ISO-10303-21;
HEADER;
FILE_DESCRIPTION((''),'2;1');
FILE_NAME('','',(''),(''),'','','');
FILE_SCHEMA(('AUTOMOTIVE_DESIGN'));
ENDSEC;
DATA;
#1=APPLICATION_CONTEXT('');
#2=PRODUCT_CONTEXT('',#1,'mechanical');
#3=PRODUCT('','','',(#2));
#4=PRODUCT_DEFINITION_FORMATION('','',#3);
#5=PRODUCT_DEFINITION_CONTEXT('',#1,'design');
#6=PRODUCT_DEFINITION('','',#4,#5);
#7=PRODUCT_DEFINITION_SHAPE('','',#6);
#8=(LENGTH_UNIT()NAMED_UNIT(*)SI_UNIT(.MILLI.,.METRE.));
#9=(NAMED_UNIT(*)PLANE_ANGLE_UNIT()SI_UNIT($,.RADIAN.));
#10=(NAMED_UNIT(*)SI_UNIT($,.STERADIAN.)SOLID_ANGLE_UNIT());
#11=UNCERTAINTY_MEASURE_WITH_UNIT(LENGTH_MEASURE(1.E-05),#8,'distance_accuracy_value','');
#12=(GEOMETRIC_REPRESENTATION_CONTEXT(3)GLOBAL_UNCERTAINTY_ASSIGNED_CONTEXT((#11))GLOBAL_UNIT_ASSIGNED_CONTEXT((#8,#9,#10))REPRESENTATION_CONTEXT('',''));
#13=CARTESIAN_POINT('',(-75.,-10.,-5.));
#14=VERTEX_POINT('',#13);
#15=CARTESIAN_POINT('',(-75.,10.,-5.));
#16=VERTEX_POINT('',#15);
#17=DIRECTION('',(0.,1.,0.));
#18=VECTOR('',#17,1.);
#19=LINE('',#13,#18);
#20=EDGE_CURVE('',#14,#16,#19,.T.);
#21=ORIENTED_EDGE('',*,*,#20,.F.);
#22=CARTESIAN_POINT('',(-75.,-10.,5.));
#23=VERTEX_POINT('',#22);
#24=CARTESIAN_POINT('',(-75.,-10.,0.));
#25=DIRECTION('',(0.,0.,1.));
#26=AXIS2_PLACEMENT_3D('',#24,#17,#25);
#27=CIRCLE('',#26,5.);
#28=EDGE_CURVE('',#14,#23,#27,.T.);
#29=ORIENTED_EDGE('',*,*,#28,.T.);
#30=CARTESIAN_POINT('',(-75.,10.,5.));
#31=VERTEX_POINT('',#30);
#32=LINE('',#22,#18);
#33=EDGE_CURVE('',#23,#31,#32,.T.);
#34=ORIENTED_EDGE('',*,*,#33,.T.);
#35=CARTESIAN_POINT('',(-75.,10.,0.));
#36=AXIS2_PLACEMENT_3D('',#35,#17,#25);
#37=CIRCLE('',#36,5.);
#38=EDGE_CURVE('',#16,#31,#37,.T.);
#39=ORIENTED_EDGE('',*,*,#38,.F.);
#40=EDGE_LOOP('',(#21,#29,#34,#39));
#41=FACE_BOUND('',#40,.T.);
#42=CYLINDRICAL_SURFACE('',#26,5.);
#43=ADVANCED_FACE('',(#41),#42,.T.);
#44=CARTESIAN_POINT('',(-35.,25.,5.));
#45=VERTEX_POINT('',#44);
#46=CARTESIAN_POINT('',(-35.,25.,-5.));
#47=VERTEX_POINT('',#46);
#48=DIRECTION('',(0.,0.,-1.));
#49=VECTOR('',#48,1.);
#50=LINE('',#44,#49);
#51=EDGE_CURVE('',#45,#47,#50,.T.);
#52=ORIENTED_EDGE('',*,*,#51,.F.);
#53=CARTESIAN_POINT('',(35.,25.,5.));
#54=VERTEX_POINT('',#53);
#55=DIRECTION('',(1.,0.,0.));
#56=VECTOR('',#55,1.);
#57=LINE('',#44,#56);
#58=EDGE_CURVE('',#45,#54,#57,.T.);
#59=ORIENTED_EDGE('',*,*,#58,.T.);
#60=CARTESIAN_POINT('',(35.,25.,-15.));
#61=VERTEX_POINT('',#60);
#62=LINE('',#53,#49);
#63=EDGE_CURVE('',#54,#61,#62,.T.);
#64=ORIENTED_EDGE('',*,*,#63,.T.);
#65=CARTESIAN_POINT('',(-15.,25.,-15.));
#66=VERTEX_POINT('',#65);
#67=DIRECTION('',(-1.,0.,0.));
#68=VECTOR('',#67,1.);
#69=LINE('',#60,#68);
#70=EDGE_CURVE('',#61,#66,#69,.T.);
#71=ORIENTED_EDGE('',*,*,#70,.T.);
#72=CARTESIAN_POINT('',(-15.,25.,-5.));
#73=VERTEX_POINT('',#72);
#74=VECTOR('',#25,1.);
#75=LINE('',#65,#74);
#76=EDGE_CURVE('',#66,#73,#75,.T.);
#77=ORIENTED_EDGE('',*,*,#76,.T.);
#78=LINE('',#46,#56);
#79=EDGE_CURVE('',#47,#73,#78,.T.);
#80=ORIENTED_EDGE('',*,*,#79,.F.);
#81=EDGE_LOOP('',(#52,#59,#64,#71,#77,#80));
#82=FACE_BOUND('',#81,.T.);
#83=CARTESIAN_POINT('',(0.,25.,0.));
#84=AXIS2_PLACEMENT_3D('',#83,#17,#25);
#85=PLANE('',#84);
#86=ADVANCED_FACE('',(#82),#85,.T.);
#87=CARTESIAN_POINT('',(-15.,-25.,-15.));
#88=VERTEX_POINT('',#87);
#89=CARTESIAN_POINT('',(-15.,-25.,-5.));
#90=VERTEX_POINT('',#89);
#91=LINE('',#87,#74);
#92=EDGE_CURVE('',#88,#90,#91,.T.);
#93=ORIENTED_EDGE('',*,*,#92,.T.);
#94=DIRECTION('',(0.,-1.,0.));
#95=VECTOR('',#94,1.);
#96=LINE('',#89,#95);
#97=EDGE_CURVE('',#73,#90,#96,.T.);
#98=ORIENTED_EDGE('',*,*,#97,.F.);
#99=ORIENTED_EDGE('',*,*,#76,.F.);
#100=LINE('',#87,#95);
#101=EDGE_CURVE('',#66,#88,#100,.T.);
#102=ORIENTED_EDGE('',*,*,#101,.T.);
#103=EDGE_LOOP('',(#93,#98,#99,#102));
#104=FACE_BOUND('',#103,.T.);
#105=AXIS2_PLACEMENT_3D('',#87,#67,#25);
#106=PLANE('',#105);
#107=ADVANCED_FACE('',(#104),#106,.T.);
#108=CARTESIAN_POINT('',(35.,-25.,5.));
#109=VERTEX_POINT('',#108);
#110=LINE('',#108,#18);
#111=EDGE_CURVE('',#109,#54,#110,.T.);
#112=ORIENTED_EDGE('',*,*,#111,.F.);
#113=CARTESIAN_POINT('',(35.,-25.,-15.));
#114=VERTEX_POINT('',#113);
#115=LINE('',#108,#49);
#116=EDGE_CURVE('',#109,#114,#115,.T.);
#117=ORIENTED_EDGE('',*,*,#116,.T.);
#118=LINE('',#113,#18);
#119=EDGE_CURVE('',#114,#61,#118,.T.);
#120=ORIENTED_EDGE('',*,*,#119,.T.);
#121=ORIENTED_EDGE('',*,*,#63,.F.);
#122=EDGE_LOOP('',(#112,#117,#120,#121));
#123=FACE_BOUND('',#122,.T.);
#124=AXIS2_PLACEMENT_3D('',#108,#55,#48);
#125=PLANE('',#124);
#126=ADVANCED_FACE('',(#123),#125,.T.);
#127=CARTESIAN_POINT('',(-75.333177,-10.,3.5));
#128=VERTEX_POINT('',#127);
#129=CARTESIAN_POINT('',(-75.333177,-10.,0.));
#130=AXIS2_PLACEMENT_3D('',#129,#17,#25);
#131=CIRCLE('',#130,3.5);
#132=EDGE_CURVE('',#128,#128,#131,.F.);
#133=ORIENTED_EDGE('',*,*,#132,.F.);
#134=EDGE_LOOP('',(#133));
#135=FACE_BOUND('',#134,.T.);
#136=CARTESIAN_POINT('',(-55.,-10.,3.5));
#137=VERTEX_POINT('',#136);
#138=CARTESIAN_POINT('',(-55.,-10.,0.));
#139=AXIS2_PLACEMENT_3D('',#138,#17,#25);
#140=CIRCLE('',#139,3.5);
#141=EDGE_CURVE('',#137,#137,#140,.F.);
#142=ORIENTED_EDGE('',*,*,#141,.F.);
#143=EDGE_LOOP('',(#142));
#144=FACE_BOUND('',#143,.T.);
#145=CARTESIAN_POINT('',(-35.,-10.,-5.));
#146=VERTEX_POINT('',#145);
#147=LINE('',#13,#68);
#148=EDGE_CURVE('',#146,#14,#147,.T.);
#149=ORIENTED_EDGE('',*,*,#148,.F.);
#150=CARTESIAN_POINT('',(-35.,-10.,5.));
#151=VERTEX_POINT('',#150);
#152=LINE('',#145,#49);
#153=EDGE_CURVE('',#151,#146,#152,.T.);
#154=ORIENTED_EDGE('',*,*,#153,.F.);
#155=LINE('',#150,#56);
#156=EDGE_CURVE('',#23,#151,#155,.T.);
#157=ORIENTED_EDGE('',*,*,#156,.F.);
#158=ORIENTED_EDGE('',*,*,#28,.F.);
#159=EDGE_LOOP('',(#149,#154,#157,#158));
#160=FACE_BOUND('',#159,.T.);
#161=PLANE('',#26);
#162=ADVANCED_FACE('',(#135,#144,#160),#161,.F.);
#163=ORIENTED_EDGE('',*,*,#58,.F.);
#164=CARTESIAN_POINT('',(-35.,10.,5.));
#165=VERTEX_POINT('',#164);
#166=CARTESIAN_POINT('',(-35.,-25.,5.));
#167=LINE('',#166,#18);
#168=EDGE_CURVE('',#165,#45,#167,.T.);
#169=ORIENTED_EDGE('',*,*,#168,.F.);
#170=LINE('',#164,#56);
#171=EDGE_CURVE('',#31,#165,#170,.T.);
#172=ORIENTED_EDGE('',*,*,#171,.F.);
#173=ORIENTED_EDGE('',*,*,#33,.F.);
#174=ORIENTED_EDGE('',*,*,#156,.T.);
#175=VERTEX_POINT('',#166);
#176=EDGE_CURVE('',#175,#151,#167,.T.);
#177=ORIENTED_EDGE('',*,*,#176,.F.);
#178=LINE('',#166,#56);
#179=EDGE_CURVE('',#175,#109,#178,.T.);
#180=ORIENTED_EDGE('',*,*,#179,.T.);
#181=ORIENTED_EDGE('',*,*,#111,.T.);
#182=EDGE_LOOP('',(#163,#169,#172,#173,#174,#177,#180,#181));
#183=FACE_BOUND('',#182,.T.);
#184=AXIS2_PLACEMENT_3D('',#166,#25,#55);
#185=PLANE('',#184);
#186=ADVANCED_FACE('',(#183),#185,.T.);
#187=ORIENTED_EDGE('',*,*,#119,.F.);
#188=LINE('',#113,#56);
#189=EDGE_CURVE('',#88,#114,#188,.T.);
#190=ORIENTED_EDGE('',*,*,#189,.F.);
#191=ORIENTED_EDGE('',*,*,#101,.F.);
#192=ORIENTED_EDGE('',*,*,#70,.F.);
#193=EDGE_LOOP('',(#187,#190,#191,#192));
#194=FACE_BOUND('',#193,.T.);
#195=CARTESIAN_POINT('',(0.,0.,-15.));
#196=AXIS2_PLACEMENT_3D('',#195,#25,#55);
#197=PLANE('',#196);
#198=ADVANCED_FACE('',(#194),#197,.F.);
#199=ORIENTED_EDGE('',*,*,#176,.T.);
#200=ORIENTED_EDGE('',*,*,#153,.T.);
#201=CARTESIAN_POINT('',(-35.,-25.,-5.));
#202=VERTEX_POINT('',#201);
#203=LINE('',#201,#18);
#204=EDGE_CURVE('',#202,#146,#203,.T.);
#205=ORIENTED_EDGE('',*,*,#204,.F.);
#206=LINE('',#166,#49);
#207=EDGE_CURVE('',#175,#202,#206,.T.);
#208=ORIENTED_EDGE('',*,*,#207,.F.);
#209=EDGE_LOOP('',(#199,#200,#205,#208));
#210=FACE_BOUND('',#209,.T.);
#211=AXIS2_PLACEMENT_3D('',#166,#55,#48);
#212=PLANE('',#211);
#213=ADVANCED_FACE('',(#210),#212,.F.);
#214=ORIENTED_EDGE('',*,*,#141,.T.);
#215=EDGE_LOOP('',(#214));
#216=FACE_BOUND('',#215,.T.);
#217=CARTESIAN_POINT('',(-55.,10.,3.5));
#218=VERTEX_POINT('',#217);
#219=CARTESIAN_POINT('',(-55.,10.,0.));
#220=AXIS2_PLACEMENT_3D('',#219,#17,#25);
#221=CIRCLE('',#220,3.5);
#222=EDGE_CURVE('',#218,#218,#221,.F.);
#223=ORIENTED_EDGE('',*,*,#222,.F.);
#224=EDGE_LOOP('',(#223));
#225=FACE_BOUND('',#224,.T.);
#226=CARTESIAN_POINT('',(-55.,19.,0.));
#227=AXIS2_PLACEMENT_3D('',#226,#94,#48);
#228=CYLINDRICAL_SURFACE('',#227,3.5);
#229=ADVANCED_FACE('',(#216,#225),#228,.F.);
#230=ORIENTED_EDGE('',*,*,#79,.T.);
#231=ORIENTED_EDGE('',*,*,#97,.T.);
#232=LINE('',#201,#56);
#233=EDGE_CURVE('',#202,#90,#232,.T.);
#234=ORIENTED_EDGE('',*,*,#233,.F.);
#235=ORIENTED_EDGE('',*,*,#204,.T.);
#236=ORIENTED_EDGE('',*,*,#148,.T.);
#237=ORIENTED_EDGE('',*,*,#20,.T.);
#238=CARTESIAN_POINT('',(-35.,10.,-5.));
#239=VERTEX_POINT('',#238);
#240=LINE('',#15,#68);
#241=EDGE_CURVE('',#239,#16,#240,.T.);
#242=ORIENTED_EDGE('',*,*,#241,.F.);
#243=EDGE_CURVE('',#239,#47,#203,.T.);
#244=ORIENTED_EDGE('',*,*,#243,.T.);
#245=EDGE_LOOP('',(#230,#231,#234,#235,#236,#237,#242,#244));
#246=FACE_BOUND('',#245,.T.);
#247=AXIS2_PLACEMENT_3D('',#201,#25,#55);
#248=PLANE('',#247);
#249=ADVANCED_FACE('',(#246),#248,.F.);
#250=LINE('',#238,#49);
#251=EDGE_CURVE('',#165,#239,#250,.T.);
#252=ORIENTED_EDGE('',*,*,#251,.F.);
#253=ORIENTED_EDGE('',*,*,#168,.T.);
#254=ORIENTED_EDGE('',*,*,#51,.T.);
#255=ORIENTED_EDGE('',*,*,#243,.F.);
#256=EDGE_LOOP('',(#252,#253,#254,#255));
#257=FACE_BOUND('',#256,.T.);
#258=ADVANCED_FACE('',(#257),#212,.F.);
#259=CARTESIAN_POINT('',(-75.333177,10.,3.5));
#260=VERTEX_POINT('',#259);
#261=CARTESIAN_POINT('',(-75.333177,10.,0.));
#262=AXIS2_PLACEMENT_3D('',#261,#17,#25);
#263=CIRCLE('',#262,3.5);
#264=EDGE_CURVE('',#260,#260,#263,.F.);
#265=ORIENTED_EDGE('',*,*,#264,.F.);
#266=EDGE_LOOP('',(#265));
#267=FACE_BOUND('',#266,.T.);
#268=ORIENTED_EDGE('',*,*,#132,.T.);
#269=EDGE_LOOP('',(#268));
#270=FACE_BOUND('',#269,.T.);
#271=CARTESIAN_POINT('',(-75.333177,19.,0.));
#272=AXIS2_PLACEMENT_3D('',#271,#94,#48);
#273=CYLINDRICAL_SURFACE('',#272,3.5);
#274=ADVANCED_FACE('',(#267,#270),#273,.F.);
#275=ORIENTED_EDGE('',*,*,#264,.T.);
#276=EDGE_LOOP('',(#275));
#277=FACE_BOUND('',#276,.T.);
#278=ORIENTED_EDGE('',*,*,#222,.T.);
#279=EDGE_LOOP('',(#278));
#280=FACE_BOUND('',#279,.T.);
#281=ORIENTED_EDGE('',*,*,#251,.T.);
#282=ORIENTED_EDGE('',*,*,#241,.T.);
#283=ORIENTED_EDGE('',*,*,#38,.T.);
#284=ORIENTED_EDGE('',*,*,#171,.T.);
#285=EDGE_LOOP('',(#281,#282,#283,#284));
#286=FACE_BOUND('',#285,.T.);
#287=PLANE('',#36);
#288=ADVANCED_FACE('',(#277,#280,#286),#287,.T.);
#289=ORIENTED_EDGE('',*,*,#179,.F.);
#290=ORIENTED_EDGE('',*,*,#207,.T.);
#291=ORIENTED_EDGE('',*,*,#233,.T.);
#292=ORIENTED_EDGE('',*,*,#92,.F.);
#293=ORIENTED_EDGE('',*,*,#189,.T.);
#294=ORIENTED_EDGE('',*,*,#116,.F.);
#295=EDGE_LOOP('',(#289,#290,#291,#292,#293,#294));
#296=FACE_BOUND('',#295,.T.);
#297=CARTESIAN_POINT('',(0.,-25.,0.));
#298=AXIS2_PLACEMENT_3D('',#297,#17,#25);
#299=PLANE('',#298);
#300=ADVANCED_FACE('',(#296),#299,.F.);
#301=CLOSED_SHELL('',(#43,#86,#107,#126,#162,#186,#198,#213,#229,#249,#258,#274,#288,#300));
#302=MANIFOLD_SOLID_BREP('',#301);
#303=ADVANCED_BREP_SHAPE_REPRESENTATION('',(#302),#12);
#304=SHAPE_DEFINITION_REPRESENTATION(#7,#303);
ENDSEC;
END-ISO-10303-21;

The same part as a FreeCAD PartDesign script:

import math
import FreeCAD as App
import Part
import Sketcher

V = App.Vector
Q = App.Units.Quantity


def add_polygon(sketch, points):
    """Adds a closed chain of lines whose ends are joined by coincident constraints."""
    first, n = sketch.GeometryCount, len(points)
    for a, b in zip(points, points[1:] + points[:1]):
        sketch.addGeometry(Part.LineSegment(App.Vector(*a, 0), App.Vector(*b, 0)), False)
    for i in range(n):
        sketch.addConstraint(Sketcher.Constraint("Coincident", first + i, 2, first + (i + 1) % n, 1))

doc = App.newDocument("Part")
params = doc.addObject("Spreadsheet::Sheet", "Params")
for row, (alias, value) in enumerate([
    ("sketch1_width", "70 mm"),
    ("sketch1_height", "10 mm"),
    ("pad1_length", "25 mm"),
    ("pad1_length2", "25 mm"),
    ("sketch2_radius", "5 mm"),
    ("sketch2_width", "40 mm"),
    ("pad2_length", "10 mm"),
    ("pad2_length2", "10 mm"),
    ("sketch3_diameter", "7 mm"),
    ("sketch4_width", "50 mm"),
    ("pad3_length", "15 mm"),
], start=1):
    params.set(f"A{row}", alias)
    params.set(f"B{row}", "=" + value)
    params.setAlias(f"B{row}", alias)

body = doc.addObject("PartDesign::Body", "Body")

# Sketch on XZ plane
sketch1 = body.newObject("Sketcher::SketchObject", "Sketch")
sketch1.AttachmentSupport = (doc.getObject("XZ_Plane"), [""])
sketch1.MapMode = "FlatFace"
add_polygon(sketch1, [(-35, -5), (-35, 5), (35, 5), (35, -5)])  # lines 0-3
sketch1.addConstraint([
    Sketcher.Constraint("Vertical", 0),
    Sketcher.Constraint("Horizontal", 1),
    Sketcher.Constraint("Vertical", 2),
    Sketcher.Constraint("Horizontal", 3),
    Sketcher.Constraint("Symmetric", 0, 2, 2, 2, -1, 1),
    Sketcher.Constraint("DistanceX", 1, 1, 1, 2, Q("70 mm")),
    Sketcher.Constraint("DistanceY", 0, 1, 0, 2, Q("10 mm")),
])
sketch1.setExpression("Constraints[9]", "Params.sketch1_width")
sketch1.setExpression("Constraints[10]", "Params.sketch1_height")
pad1 = body.newObject("PartDesign::Pad", "Pad")
pad1.Profile = sketch1
pad1.Type = "TwoLengths"
pad1.setExpression("Length", "Params.pad1_length")
pad1.setExpression("Length2", "Params.pad1_length2")
pad1.Reversed = True

# Sketch on XZ plane
sketch2 = body.newObject("Sketcher::SketchObject", "Sketch001")
sketch2.AttachmentSupport = (doc.getObject("XZ_Plane"), [""])
sketch2.MapMode = "FlatFace"
sketch2.addGeometry([
    Part.LineSegment(V(-35, -5, 0), V(-75, -5, 0)),
    Part.ArcOfCircle(Part.Circle(V(-75, 0, 0), V(0, 0, 1), 5), math.radians(90), math.radians(270)),
    Part.LineSegment(V(-75, 5, 0), V(-35, 5, 0)),
    Part.LineSegment(V(-35, 5, 0), V(-35, -5, 0)),
], False)
sketch2.addConstraint([
    Sketcher.Constraint("Tangent", 0, 2, 1, 2),
    Sketcher.Constraint("Tangent", 1, 1, 2, 1),
    Sketcher.Constraint("Coincident", 2, 2, 3, 1),
    Sketcher.Constraint("Coincident", 3, 2, 0, 1),
    Sketcher.Constraint("Horizontal", 0),
    Sketcher.Constraint("Horizontal", 2),
    Sketcher.Constraint("Vertical", 3),
    Sketcher.Constraint("PointOnObject", 1, 3, -1),
    Sketcher.Constraint("Radius", 1, Q("5 mm")),
    Sketcher.Constraint("DistanceX", 0, 2, 0, 1, Q("40 mm")),
    Sketcher.Constraint("DistanceX", 1, 3, -1, 1, Q("75 mm")),
])
sketch2.setExpression("Constraints[8]", "Params.sketch2_radius")
sketch2.setExpression("Constraints[9]", "Params.sketch2_width")
pad2 = body.newObject("PartDesign::Pad", "Pad001")
pad2.Profile = sketch2
pad2.Type = "TwoLengths"
pad2.setExpression("Length", "Params.pad2_length")
pad2.setExpression("Length2", "Params.pad2_length2")
pad2.Reversed = True

# Sketch on XZ plane
sketch3 = body.newObject("Sketcher::SketchObject", "Sketch002")
sketch3.AttachmentSupport = (doc.getObject("XZ_Plane"), [""])
sketch3.MapMode = "FlatFace"
sketch3.addGeometry([
    Part.Circle(V(-75.3, 0, 0), V(0, 0, 1), 3.5),
    Part.Circle(V(-55, 0, 0), V(0, 0, 1), 3.5),
], False)
sketch3.addConstraint([
    Sketcher.Constraint("Equal", 0, 1),
    Sketcher.Constraint("PointOnObject", 0, 3, -1),
    Sketcher.Constraint("PointOnObject", 1, 3, -1),
    Sketcher.Constraint("Diameter", 0, Q("7 mm")),
    Sketcher.Constraint("DistanceX", 1, 3, -1, 1, Q("55 mm")),
    Sketcher.Constraint("DistanceX", 0, 3, -1, 1, Q("75.333177 mm")),
])
sketch3.setExpression("Constraints[3]", "Params.sketch3_diameter")
pocket1 = body.newObject("PartDesign::Pocket", "Pocket")
pocket1.Profile = sketch3
pocket1.Type = "ThroughAll"
pocket1.Midplane = True

# Sketch on XY plane
sketch4 = body.newObject("Sketcher::SketchObject", "Sketch003")
sketch4.AttachmentSupport = (doc.getObject("XY_Plane"), [""])
sketch4.MapMode = "FlatFace"
add_polygon(sketch4, [(-15, 25), (-15, -25), (35, -25), (35, 25)])  # lines 0-3
sketch4.addConstraint([
    Sketcher.Constraint("Vertical", 0),
    Sketcher.Constraint("Horizontal", 1),
    Sketcher.Constraint("Vertical", 2),
    Sketcher.Constraint("Horizontal", 3),
    Sketcher.Constraint("Equal", 3, 0),
    Sketcher.Constraint("DistanceX", 1, 1, 1, 2, Q("50 mm")),
    Sketcher.Constraint("DistanceX", 0, 2, -1, 1, Q("15 mm")),
    Sketcher.Constraint("DistanceY", 0, 2, -1, 1, Q("25 mm")),
])
sketch4.setExpression("Constraints[9]", "Params.sketch4_width")
pad3 = body.newObject("PartDesign::Pad", "Pad002")
pad3.Profile = sketch4
pad3.setExpression("Length", "Params.pad3_length")
pad3.Reversed = True

doc.recompute()
